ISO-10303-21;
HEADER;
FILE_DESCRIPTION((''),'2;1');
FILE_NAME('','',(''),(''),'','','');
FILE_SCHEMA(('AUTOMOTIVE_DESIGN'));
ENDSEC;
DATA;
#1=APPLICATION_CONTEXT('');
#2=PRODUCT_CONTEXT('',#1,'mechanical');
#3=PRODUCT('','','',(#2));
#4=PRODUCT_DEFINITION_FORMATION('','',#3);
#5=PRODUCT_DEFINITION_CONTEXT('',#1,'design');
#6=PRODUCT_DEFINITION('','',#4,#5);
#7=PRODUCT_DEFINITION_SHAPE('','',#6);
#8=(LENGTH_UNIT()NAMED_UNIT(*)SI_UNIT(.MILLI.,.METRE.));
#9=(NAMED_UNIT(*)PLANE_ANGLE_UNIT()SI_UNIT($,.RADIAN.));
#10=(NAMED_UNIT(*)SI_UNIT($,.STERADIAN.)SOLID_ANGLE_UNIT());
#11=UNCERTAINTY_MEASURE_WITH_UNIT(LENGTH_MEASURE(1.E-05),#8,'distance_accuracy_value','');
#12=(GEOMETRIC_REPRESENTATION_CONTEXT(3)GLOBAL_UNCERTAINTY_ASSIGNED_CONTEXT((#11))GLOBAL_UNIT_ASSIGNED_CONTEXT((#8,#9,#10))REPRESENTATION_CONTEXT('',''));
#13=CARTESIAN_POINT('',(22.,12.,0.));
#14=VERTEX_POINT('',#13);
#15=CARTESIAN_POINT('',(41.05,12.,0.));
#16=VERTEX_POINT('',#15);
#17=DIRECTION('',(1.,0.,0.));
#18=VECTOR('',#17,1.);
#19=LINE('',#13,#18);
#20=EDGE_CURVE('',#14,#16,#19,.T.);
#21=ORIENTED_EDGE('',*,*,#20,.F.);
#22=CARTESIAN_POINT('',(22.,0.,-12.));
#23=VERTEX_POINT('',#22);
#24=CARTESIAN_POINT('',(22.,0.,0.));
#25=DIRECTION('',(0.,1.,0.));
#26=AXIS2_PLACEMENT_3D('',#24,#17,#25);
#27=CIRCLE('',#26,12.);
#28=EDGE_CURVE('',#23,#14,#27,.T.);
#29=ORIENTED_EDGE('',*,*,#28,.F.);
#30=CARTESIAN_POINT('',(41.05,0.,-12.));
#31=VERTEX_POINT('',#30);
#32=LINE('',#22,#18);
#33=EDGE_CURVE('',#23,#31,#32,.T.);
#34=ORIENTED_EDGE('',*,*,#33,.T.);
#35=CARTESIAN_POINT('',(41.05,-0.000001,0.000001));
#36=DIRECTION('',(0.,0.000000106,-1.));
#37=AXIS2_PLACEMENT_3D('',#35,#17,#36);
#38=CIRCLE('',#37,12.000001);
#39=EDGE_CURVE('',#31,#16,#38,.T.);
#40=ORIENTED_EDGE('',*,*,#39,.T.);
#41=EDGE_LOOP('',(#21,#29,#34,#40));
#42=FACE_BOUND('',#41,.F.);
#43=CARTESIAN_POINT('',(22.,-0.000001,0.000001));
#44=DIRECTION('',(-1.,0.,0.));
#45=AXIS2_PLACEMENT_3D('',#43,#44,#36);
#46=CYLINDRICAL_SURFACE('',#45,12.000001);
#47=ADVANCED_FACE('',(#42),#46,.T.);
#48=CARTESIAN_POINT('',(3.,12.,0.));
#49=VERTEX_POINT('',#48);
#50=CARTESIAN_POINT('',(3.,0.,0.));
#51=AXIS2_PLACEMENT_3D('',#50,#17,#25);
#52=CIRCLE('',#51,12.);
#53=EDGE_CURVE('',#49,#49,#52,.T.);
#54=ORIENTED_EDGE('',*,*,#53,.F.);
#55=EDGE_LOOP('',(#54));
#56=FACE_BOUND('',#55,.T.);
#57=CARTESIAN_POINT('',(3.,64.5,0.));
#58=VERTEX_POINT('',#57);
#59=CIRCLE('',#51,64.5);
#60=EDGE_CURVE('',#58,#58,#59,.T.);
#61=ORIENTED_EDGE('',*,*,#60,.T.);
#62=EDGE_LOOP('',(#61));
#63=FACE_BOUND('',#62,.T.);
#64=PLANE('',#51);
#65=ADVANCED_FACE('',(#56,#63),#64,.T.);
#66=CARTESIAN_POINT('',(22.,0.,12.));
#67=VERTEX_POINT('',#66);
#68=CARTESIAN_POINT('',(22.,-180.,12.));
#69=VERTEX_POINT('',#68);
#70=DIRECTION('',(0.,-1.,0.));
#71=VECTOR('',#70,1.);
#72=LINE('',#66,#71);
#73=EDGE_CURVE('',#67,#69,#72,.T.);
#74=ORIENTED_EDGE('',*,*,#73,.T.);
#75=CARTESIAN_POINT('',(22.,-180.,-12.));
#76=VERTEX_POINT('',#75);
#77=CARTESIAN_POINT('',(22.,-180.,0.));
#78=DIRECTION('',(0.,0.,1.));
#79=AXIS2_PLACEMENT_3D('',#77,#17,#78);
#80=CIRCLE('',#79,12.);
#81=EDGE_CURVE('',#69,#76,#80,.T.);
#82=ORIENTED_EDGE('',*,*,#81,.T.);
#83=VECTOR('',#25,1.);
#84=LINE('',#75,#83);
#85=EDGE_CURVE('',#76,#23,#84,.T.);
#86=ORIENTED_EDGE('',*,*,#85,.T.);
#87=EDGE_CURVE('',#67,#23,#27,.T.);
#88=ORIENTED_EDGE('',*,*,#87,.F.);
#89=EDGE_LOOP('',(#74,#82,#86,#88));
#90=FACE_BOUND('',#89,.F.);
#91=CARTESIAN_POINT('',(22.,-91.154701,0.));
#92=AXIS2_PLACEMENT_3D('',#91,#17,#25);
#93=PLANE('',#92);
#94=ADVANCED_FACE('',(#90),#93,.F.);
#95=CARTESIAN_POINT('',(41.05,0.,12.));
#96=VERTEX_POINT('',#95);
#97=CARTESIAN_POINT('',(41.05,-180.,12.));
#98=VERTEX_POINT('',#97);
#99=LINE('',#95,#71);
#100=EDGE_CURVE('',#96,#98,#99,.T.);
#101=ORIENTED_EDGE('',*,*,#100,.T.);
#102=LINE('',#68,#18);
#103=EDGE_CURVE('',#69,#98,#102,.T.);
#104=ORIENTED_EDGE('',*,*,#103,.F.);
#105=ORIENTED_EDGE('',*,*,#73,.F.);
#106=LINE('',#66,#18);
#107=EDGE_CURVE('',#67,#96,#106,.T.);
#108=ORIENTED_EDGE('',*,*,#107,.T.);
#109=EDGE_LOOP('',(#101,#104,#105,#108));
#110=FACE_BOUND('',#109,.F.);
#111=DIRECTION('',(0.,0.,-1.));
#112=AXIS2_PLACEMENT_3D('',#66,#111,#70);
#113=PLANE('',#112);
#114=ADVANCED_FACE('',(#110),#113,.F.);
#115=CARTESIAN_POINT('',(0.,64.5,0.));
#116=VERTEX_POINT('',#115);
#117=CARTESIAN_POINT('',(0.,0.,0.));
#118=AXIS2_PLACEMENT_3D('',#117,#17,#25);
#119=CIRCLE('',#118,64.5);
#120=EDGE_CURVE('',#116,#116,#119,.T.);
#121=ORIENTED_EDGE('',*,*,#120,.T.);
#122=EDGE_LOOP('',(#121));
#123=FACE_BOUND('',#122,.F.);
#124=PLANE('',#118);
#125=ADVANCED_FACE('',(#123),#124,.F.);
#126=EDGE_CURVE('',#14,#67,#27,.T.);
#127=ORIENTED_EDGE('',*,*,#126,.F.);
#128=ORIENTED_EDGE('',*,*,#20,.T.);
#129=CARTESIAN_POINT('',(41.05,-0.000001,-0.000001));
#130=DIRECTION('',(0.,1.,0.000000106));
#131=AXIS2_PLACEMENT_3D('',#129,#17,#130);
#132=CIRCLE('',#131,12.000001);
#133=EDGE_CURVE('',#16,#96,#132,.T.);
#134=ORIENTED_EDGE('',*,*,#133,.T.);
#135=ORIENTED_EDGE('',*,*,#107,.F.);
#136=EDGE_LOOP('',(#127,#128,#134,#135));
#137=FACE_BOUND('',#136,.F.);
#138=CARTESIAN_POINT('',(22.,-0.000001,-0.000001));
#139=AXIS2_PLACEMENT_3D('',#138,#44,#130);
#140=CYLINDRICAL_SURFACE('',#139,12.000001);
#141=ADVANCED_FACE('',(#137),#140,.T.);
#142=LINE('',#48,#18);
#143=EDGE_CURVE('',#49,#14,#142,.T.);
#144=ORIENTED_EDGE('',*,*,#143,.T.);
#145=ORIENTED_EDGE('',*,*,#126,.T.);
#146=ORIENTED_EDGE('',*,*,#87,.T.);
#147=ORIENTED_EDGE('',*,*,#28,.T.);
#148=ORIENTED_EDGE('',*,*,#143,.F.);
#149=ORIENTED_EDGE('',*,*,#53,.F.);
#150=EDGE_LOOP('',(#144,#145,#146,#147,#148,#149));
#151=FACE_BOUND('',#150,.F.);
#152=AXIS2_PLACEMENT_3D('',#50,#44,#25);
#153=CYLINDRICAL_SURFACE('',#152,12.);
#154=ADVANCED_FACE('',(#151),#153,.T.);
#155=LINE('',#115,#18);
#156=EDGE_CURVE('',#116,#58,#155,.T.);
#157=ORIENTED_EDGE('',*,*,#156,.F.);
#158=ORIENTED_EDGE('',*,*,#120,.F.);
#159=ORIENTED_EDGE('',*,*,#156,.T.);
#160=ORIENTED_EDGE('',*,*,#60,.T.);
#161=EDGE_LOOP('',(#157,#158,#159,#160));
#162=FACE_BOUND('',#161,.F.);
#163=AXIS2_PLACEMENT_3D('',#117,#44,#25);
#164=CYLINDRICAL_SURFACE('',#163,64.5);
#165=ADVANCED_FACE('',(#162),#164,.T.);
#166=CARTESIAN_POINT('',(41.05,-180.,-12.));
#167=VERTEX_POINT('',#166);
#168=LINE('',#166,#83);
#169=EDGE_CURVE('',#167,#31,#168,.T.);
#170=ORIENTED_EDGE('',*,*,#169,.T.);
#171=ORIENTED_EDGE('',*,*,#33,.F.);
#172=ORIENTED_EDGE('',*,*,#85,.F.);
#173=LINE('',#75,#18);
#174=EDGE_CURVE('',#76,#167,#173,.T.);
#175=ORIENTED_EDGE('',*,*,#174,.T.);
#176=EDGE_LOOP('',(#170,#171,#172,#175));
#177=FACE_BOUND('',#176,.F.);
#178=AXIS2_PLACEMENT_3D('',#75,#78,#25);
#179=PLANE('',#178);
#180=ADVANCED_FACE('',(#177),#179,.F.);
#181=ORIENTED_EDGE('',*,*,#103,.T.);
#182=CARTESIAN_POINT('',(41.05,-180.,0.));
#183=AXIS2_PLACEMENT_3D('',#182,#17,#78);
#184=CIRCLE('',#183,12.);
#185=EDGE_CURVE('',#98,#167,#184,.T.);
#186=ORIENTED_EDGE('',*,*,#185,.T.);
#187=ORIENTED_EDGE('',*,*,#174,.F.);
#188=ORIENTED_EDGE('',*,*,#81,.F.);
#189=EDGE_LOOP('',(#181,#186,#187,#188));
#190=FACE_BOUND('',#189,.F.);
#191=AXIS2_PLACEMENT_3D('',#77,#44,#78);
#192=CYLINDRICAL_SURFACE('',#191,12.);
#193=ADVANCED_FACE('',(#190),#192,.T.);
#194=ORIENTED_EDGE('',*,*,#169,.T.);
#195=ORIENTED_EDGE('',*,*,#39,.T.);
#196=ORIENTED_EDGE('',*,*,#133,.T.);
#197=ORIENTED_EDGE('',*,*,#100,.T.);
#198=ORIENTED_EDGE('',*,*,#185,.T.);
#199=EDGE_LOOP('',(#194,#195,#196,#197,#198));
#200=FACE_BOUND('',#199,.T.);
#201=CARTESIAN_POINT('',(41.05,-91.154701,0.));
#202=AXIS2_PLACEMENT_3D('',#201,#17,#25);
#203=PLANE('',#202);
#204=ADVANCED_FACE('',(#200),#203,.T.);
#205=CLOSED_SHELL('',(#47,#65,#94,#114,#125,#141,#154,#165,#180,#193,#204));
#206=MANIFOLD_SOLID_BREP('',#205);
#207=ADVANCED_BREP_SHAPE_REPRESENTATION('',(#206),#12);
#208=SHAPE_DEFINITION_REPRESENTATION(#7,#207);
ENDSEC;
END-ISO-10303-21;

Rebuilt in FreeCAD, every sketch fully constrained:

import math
import FreeCAD as App
import Part
import Sketcher
from FreeCAD import Vector
Q = App.Units.Quantity

doc = App.newDocument("Part")
body = doc.addObject("PartDesign::Body", "Body")

# Sketch on YZ plane
sketch1 = body.newObject("Sketcher::SketchObject", "Sketch")
sketch1.AttachmentSupport = (doc.getObject("YZ_Plane"), [""])
sketch1.MapMode = "FlatFace"
sketch1.addGeometry(Part.Circle(Vector(0, 0, 0), Vector(0, 0, 1), 64), False)
sketch1.addConstraint([
    Sketcher.Constraint("Coincident", 0, 3, -1, 1),
    Sketcher.Constraint("Diameter", 0, Q("129 mm")),
])
pad1 = body.newObject("PartDesign::Pad", "Pad")
pad1.Profile = sketch1
pad1.Length = 3

# Sketch on YZ plane
sketch2 = body.newObject("Sketcher::SketchObject", "Sketch001")
sketch2.AttachmentSupport = (doc.getObject("YZ_Plane"), [""])
sketch2.MapMode = "FlatFace"
sketch2.AttachmentOffset = App.Placement(Vector(0, 0, 3), App.Rotation())
sketch2.addGeometry(Part.Circle(Vector(0, 0, 0), Vector(0, 0, 1), 12), False)
sketch2.addConstraint([
    Sketcher.Constraint("Coincident", 0, 3, -1, 1),
    Sketcher.Constraint("Diameter", 0, Q("24 mm")),
])
pad2 = body.newObject("PartDesign::Pad", "Pad001")
pad2.Profile = sketch2
pad2.Length = 19

# Sketch on YZ plane
sketch3 = body.newObject("Sketcher::SketchObject", "Sketch002")
sketch3.AttachmentSupport = (doc.getObject("YZ_Plane"), [""])
sketch3.MapMode = "FlatFace"
sketch3.AttachmentOffset = App.Placement(Vector(0, 0, 22), App.Rotation())
sketch3.addGeometry([
    Part.LineSegment(Vector(0, 12, 0), Vector(-180, 12, 0)),  # 0
    Part.ArcOfCircle(Part.Circle(Vector(-180, 0, 0), Vector(0, 0, 1), 12), math.radians(90), math.radians(270)),  # 1
    Part.LineSegment(Vector(-180, -12, 0), Vector(0, -12, 0)),  # 2
    Part.ArcOfCircle(Part.Circle(Vector(0, 0, 0), Vector(0, 0, 1), 12), math.radians(-90), math.radians(0)),  # 3
    Part.ArcOfCircle(Part.Circle(Vector(0, 0, 0), Vector(0, 0, 1), 12), math.radians(0), math.radians(90)),  # 4
], False)
sketch3.addConstraint([
    Sketcher.Constraint("Tangent", 0, 2, 1, 1),
    Sketcher.Constraint("Tangent", 1, 2, 2, 1),
    Sketcher.Constraint("Tangent", 2, 2, 3, 1),
    Sketcher.Constraint("Tangent", 3, 2, 4, 1),
    Sketcher.Constraint("Tangent", 4, 2, 0, 1),
    Sketcher.Constraint("Horizontal", 0),
    Sketcher.Constraint("Horizontal", 2),
    Sketcher.Constraint("Coincident", 3, 3, -1, 1),
    Sketcher.Constraint("Equal", 1, 3),
    Sketcher.Constraint("PointOnObject", 3, 2, -1),
    Sketcher.Constraint("Radius", 1, Q("12 mm")),
    Sketcher.Constraint("DistanceX", 0, 2, 0, 1, Q("180 mm")),
])
pad3 = body.newObject("PartDesign::Pad", "Pad002")
pad3.Profile = sketch3
pad3.Length = 19.05

doc.recompute()
